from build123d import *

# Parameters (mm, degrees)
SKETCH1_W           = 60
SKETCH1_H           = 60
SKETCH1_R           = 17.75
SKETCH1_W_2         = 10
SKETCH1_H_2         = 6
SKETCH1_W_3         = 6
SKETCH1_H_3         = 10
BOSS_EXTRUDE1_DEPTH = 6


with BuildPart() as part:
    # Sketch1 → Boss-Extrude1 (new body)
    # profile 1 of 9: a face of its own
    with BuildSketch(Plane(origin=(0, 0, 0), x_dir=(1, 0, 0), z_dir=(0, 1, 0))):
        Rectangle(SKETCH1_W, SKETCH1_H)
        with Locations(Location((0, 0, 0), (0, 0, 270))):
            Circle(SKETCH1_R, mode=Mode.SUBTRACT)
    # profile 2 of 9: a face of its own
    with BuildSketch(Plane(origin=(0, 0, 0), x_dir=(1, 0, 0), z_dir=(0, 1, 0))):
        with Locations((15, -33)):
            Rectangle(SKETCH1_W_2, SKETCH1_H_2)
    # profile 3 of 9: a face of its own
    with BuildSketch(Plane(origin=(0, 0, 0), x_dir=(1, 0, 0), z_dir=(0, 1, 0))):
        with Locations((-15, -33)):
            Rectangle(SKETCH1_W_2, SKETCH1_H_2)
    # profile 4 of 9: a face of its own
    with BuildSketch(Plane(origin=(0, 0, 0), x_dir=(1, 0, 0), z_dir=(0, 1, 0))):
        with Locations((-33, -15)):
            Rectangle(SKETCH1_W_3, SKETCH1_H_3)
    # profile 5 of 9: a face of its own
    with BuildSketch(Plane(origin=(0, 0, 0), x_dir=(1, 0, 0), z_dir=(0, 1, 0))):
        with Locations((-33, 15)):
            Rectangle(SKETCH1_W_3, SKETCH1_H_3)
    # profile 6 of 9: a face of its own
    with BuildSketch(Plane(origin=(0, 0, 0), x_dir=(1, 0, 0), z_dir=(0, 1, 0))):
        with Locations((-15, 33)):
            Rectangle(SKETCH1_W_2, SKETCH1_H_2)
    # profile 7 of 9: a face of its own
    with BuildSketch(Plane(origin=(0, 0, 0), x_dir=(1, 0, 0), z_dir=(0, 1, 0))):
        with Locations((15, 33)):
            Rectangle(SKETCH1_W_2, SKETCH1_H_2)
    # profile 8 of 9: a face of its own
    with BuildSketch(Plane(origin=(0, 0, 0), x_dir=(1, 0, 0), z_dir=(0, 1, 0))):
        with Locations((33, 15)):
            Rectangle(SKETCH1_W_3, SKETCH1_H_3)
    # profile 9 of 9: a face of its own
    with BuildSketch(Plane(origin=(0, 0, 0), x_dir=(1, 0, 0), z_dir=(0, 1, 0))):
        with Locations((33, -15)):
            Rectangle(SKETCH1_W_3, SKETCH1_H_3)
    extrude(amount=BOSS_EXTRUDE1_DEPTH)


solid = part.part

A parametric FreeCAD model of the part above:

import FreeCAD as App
import Part
import Sketcher


def add_polygon(sketch, points):
    """Adds a closed chain of lines whose ends are joined by coincident constraints."""
    first, n = sketch.GeometryCount, len(points)
    for a, b in zip(points, points[1:] + points[:1]):
        sketch.addGeometry(Part.LineSegment(App.Vector(*a, 0), App.Vector(*b, 0)), False)
    for i in range(n):
        sketch.addConstraint(Sketcher.Constraint("Coincident", first + i, 2, first + (i + 1) % n, 1))

doc = App.newDocument("Part")
params = doc.addObject("Spreadsheet::Sheet", "Params")
for row, (alias, value) in enumerate([
    ("sketch1_diameter", "35.5 mm"),
    ("sketch1_width", "10 mm"),
    ("sketch1_width2", "20 mm"),
    ("sketch1_width3", "6 mm"),
    ("pad1_length", "6 mm"),
], start=1):
    params.set(f"A{row}", alias)
    params.set(f"B{row}", "=" + value)
    params.setAlias(f"B{row}", alias)

body = doc.addObject("PartDesign::Body", "Body")

# Sketch on XZ plane
sketch1 = body.newObject("Sketcher::SketchObject", "Sketch")
sketch1.AttachmentSupport = (doc.getObject("XZ_Plane"), [""])
sketch1.MapMode = "FlatFace"
add_polygon(sketch1, [(-30, 20), (-30, 30), (-20, 30), (-20, 36), (-10, 36), (-10, 30), (10, 30), (10, 36), (20, 36), (20, 30), (30, 30), (30, 20), (36, 20), (36, 10), (30, 10), (30, -10), (36, -10), (36, -20), (30, -20), (30, -30), (20, -30), (20, -36), (10, -36), (10, -30), (-10, -30), (-10, -36), (-20, -36), (-20, -30), (-30, -30), (-30, -20), (-36, -20), (-36, -10), (-30, -10), (-30, 10), (-36, 10), (-36, 20)])  # lines 0-35
sketch1.addGeometry(Part.Circle(App.Vector(0, 0, 0), App.Vector(0, 0, 1), 18), False)  # 36
sketch1.addConstraint(Sketcher.Constraint("Vertical", 0))
sketch1.addConstraint(Sketcher.Constraint("Horizontal", 1))
sketch1.addConstraint(Sketcher.Constraint("Vertical", 2))
sketch1.addConstraint(Sketcher.Constraint("Horizontal", 3))
sketch1.addConstraint(Sketcher.Constraint("Vertical", 4))
sketch1.addConstraint(Sketcher.Constraint("Horizontal", 5))
sketch1.addConstraint(Sketcher.Constraint("Vertical", 6))
sketch1.addConstraint(Sketcher.Constraint("Horizontal", 7))
sketch1.addConstraint(Sketcher.Constraint("Vertical", 8))
sketch1.addConstraint(Sketcher.Constraint("Horizontal", 9))
sketch1.addConstraint(Sketcher.Constraint("Vertical", 10))
sketch1.addConstraint(Sketcher.Constraint("Horizontal", 11))
sketch1.addConstraint(Sketcher.Constraint("Vertical", 12))
sketch1.addConstraint(Sketcher.Constraint("Horizontal", 13))
sketch1.addConstraint(Sketcher.Constraint("Vertical", 14))
sketch1.addConstraint(Sketcher.Constraint("Horizontal", 15))
sketch1.addConstraint(Sketcher.Constraint("Vertical", 16))
sketch1.addConstraint(Sketcher.Constraint("Horizontal", 17))
sketch1.addConstraint(Sketcher.Constraint("Vertical", 18))
sketch1.addConstraint(Sketcher.Constraint("Horizontal", 19))
sketch1.addConstraint(Sketcher.Constraint("Vertical", 20))
sketch1.addConstraint(Sketcher.Constraint("Horizontal", 21))
sketch1.addConstraint(Sketcher.Constraint("Vertical", 22))
sketch1.addConstraint(Sketcher.Constraint("Horizontal", 23))
sketch1.addConstraint(Sketcher.Constraint("Vertical", 24))
sketch1.addConstraint(Sketcher.Constraint("Horizontal", 25))
sketch1.addConstraint(Sketcher.Constraint("Vertical", 26))
sketch1.addConstraint(Sketcher.Constraint("Horizontal", 27))
sketch1.addConstraint(Sketcher.Constraint("Vertical", 28))
sketch1.addConstraint(Sketcher.Constraint("Horizontal", 29))
sketch1.addConstraint(Sketcher.Constraint("Vertical", 30))
sketch1.addConstraint(Sketcher.Constraint("Horizontal", 31))
sketch1.addConstraint(Sketcher.Constraint("Vertical", 32))
sketch1.addConstraint(Sketcher.Constraint("Horizontal", 33))
sketch1.addConstraint(Sketcher.Constraint("Vertical", 34))
sketch1.addConstraint(Sketcher.Constraint("Horizontal", 35))
sketch1.addConstraint(Sketcher.Constraint("Coincident", 36, 3, -1, 1))
sketch1.addConstraint(Sketcher.Constraint("Symmetric", 0, 2, 18, 2, -1, 1))
sketch1.addConstraint(Sketcher.Constraint("Symmetric", 2, 2, 20, 2, -1, 1))
sketch1.addConstraint(Sketcher.Constraint("Symmetric", 4, 2, 22, 2, -1, 1))
sketch1.addConstraint(Sketcher.Constraint("Symmetric", 6, 2, 24, 2, -1, 1))
sketch1.addConstraint(Sketcher.Constraint("Symmetric", 8, 2, 26, 2, -1, 1))
sketch1.addConstraint(Sketcher.Constraint("Symmetric", 10, 2, 28, 2, -1, 1))
sketch1.addConstraint(Sketcher.Constraint("Symmetric", 12, 2, 30, 2, -1, 1))
sketch1.addConstraint(Sketcher.Constraint("Symmetric", 14, 2, 32, 2, -1, 1))
sketch1.addConstraint(Sketcher.Constraint("Symmetric", 16, 2, 34, 2, -1, 1))
sketch1.addConstraint(Sketcher.Constraint("Symmetric", 3, 2, 6, 2, -2))
sketch1.addConstraint(Sketcher.Constraint("Symmetric", 1, 2, 8, 2, -2))
sketch1.addConstraint(Sketcher.Constraint("Symmetric", 17, 2, 28, 2, -2))
sketch1.addConstraint(Sketcher.Constraint("Symmetric", 15, 2, 30, 2, -2))
sketch1.addConstraint(Sketcher.Constraint("Horizontal", 1, 2, 4, 2))
sketch1.addConstraint(Sketcher.Constraint("Vertical", 10, 2, 13, 2))
sketch1.addConstraint(Sketcher.Constraint("Equal", 1, 3))
sketch1.addConstraint(Sketcher.Constraint("Equal", 27, 0))
sketch1.addConstraint(Sketcher.Constraint("Equal", 35, 2))
sketch1.addConstraint(Sketcher.Constraint("Equal", 10, 12))
sketch1.addConstraint(Sketcher.Constraint("Equal", 23, 14))
sketch1.addConstraint(Sketcher.Constraint("Diameter", 36, 35.5))
sketch1.addConstraint(Sketcher.Constraint("DistanceX", 1, 1, 1, 2, 10.0))
sketch1.addConstraint(Sketcher.Constraint("DistanceX", 5, 1, 5, 2, 20.0))
sketch1.addConstraint(Sketcher.Constraint("DistanceX", 11, 1, 11, 2, 6.0))
sketch1.setExpression("Constraints[93]", "Params.sketch1_diameter")
sketch1.setExpression("Constraints[94]", "Params.sketch1_width")
sketch1.setExpression("Constraints[95]", "Params.sketch1_width2")
sketch1.setExpression("Constraints[96]", "Params.sketch1_width3")
pad1 = body.newObject("PartDesign::Pad", "Pad")
pad1.Profile = sketch1
pad1.setExpression("Length", "Params.pad1_length")
pad1.Reversed = True

doc.recompute()
